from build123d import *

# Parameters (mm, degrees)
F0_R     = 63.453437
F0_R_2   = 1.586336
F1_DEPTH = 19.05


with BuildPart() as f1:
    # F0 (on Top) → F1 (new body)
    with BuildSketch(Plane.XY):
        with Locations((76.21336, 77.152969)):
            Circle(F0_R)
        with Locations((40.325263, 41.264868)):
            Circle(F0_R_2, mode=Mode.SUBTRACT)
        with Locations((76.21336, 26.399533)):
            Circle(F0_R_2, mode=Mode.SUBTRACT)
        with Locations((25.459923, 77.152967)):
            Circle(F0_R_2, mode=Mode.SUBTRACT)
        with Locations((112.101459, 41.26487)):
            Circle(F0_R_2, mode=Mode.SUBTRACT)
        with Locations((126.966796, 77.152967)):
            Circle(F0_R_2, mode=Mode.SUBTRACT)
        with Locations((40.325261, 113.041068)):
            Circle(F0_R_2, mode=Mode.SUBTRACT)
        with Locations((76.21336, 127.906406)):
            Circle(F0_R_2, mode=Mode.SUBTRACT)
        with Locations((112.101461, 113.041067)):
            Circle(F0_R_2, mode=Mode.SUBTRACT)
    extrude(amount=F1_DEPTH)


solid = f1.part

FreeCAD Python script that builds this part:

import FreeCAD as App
import Part
import Sketcher
Q = App.Units.Quantity

doc = App.newDocument("Part")
body = doc.addObject("PartDesign::Body", "Body")

sketch1 = body.newObject("Sketcher::SketchObject", "Sketch")
sketch1.AttachmentSupport = (doc.getObject("XY_Plane"), [""])
sketch1.MapMode = "FlatFace"
sketch1.addGeometry(Part.Circle(App.Vector(76.2, 77.2, 0), App.Vector(0, 0, 1), 63.5), False)
sketch1.addGeometry(Part.Circle(App.Vector(40.3, 41.3, 0), App.Vector(0, 0, 1), 1.6), False)
sketch1.addGeometry(Part.Circle(App.Vector(25.5, 77.2, 0), App.Vector(0, 0, 1), 1.6), False)
sketch1.addGeometry(Part.Circle(App.Vector(76.2, 26.4, 0), App.Vector(0, 0, 1), 1.6), False)
sketch1.addGeometry(Part.Circle(App.Vector(112.1, 41.3, 0), App.Vector(0, 0, 1), 1.6), False)
sketch1.addGeometry(Part.Circle(App.Vector(127, 77.2, 0), App.Vector(0, 0, 1), 1.6), False)
sketch1.addGeometry(Part.Circle(App.Vector(40.3, 113, 0), App.Vector(0, 0, 1), 1.6), False)
sketch1.addGeometry(Part.Circle(App.Vector(76.2, 127.9, 0), App.Vector(0, 0, 1), 1.6), False)
sketch1.addGeometry(Part.Circle(App.Vector(112.1, 113, 0), App.Vector(0, 0, 1), 1.6), False)
sketch1.addConstraint(Sketcher.Constraint("Equal", 1, 2))
sketch1.addConstraint(Sketcher.Constraint("Equal", 2, 3))
sketch1.addConstraint(Sketcher.Constraint("Equal", 3, 4))
sketch1.addConstraint(Sketcher.Constraint("Equal", 4, 5))
sketch1.addConstraint(Sketcher.Constraint("Equal", 5, 6))
sketch1.addConstraint(Sketcher.Constraint("Equal", 6, 7))
sketch1.addConstraint(Sketcher.Constraint("Equal", 7, 8))
sketch1.addConstraint(Sketcher.Constraint("Horizontal", 0, 3, 2, 3))
sketch1.addConstraint(Sketcher.Constraint("Horizontal", 2, 3, 5, 3))
sketch1.addConstraint(Sketcher.Constraint("Horizontal", 6, 3, 8, 3))
sketch1.addConstraint(Sketcher.Constraint("Vertical", 0, 3, 3, 3))
sketch1.addConstraint(Sketcher.Constraint("Vertical", 3, 3, 7, 3))
sketch1.addConstraint(Sketcher.Constraint("Vertical", 4, 3, 8, 3))
sketch1.addConstraint(Sketcher.Constraint("Diameter", 1, 3.172672))
sketch1.addConstraint(Sketcher.Constraint("Diameter", 0, 126.906874))
sketch1.addConstraint(Sketcher.Constraint("DistanceY", 1, 3, 0, 3, 35.888101))
sketch1.addConstraint(Sketcher.Constraint("DistanceX", 3, 3, 4, 3, 35.888099))
sketch1.addConstraint(Sketcher.Constraint("DistanceY", 4, 3, 0, 3, 35.888099))
sketch1.addConstraint(Sketcher.Constraint("DistanceY", 2, 3, 6, 3, 35.888101))
sketch1.addConstraint(Sketcher.Constraint("DistanceX", 6, 3, 0, 3, 35.888099))
sketch1.addConstraint(Sketcher.Constraint("DistanceX", -1, 1, 0, 3, 76.21336))
sketch1.addConstraint(Sketcher.Constraint("DistanceY", -1, 1, 0, 3, 77.152969))
sketch1.addConstraint(Sketcher.Constraint("DistanceX", 2, 3, 1, 3, 14.86534))
sketch1.addConstraint(Sketcher.Constraint("DistanceY", 6, 3, 7, 3, 14.865338))
sketch1.addConstraint(Sketcher.Constraint("DistanceX", -1, 1, 1, 3, 40.325263))
sketch1.addConstraint(Sketcher.Constraint("DistanceY", -1, 1, 3, 3, 26.399533))
sketch1.addConstraint(Sketcher.Constraint("DistanceX", -1, 1, 5, 3, 126.966796))
pad1 = body.newObject("PartDesign::Pad", "Pad")
pad1.Profile = sketch1
pad1.Length = Q("0.75 in")

doc.recompute()
